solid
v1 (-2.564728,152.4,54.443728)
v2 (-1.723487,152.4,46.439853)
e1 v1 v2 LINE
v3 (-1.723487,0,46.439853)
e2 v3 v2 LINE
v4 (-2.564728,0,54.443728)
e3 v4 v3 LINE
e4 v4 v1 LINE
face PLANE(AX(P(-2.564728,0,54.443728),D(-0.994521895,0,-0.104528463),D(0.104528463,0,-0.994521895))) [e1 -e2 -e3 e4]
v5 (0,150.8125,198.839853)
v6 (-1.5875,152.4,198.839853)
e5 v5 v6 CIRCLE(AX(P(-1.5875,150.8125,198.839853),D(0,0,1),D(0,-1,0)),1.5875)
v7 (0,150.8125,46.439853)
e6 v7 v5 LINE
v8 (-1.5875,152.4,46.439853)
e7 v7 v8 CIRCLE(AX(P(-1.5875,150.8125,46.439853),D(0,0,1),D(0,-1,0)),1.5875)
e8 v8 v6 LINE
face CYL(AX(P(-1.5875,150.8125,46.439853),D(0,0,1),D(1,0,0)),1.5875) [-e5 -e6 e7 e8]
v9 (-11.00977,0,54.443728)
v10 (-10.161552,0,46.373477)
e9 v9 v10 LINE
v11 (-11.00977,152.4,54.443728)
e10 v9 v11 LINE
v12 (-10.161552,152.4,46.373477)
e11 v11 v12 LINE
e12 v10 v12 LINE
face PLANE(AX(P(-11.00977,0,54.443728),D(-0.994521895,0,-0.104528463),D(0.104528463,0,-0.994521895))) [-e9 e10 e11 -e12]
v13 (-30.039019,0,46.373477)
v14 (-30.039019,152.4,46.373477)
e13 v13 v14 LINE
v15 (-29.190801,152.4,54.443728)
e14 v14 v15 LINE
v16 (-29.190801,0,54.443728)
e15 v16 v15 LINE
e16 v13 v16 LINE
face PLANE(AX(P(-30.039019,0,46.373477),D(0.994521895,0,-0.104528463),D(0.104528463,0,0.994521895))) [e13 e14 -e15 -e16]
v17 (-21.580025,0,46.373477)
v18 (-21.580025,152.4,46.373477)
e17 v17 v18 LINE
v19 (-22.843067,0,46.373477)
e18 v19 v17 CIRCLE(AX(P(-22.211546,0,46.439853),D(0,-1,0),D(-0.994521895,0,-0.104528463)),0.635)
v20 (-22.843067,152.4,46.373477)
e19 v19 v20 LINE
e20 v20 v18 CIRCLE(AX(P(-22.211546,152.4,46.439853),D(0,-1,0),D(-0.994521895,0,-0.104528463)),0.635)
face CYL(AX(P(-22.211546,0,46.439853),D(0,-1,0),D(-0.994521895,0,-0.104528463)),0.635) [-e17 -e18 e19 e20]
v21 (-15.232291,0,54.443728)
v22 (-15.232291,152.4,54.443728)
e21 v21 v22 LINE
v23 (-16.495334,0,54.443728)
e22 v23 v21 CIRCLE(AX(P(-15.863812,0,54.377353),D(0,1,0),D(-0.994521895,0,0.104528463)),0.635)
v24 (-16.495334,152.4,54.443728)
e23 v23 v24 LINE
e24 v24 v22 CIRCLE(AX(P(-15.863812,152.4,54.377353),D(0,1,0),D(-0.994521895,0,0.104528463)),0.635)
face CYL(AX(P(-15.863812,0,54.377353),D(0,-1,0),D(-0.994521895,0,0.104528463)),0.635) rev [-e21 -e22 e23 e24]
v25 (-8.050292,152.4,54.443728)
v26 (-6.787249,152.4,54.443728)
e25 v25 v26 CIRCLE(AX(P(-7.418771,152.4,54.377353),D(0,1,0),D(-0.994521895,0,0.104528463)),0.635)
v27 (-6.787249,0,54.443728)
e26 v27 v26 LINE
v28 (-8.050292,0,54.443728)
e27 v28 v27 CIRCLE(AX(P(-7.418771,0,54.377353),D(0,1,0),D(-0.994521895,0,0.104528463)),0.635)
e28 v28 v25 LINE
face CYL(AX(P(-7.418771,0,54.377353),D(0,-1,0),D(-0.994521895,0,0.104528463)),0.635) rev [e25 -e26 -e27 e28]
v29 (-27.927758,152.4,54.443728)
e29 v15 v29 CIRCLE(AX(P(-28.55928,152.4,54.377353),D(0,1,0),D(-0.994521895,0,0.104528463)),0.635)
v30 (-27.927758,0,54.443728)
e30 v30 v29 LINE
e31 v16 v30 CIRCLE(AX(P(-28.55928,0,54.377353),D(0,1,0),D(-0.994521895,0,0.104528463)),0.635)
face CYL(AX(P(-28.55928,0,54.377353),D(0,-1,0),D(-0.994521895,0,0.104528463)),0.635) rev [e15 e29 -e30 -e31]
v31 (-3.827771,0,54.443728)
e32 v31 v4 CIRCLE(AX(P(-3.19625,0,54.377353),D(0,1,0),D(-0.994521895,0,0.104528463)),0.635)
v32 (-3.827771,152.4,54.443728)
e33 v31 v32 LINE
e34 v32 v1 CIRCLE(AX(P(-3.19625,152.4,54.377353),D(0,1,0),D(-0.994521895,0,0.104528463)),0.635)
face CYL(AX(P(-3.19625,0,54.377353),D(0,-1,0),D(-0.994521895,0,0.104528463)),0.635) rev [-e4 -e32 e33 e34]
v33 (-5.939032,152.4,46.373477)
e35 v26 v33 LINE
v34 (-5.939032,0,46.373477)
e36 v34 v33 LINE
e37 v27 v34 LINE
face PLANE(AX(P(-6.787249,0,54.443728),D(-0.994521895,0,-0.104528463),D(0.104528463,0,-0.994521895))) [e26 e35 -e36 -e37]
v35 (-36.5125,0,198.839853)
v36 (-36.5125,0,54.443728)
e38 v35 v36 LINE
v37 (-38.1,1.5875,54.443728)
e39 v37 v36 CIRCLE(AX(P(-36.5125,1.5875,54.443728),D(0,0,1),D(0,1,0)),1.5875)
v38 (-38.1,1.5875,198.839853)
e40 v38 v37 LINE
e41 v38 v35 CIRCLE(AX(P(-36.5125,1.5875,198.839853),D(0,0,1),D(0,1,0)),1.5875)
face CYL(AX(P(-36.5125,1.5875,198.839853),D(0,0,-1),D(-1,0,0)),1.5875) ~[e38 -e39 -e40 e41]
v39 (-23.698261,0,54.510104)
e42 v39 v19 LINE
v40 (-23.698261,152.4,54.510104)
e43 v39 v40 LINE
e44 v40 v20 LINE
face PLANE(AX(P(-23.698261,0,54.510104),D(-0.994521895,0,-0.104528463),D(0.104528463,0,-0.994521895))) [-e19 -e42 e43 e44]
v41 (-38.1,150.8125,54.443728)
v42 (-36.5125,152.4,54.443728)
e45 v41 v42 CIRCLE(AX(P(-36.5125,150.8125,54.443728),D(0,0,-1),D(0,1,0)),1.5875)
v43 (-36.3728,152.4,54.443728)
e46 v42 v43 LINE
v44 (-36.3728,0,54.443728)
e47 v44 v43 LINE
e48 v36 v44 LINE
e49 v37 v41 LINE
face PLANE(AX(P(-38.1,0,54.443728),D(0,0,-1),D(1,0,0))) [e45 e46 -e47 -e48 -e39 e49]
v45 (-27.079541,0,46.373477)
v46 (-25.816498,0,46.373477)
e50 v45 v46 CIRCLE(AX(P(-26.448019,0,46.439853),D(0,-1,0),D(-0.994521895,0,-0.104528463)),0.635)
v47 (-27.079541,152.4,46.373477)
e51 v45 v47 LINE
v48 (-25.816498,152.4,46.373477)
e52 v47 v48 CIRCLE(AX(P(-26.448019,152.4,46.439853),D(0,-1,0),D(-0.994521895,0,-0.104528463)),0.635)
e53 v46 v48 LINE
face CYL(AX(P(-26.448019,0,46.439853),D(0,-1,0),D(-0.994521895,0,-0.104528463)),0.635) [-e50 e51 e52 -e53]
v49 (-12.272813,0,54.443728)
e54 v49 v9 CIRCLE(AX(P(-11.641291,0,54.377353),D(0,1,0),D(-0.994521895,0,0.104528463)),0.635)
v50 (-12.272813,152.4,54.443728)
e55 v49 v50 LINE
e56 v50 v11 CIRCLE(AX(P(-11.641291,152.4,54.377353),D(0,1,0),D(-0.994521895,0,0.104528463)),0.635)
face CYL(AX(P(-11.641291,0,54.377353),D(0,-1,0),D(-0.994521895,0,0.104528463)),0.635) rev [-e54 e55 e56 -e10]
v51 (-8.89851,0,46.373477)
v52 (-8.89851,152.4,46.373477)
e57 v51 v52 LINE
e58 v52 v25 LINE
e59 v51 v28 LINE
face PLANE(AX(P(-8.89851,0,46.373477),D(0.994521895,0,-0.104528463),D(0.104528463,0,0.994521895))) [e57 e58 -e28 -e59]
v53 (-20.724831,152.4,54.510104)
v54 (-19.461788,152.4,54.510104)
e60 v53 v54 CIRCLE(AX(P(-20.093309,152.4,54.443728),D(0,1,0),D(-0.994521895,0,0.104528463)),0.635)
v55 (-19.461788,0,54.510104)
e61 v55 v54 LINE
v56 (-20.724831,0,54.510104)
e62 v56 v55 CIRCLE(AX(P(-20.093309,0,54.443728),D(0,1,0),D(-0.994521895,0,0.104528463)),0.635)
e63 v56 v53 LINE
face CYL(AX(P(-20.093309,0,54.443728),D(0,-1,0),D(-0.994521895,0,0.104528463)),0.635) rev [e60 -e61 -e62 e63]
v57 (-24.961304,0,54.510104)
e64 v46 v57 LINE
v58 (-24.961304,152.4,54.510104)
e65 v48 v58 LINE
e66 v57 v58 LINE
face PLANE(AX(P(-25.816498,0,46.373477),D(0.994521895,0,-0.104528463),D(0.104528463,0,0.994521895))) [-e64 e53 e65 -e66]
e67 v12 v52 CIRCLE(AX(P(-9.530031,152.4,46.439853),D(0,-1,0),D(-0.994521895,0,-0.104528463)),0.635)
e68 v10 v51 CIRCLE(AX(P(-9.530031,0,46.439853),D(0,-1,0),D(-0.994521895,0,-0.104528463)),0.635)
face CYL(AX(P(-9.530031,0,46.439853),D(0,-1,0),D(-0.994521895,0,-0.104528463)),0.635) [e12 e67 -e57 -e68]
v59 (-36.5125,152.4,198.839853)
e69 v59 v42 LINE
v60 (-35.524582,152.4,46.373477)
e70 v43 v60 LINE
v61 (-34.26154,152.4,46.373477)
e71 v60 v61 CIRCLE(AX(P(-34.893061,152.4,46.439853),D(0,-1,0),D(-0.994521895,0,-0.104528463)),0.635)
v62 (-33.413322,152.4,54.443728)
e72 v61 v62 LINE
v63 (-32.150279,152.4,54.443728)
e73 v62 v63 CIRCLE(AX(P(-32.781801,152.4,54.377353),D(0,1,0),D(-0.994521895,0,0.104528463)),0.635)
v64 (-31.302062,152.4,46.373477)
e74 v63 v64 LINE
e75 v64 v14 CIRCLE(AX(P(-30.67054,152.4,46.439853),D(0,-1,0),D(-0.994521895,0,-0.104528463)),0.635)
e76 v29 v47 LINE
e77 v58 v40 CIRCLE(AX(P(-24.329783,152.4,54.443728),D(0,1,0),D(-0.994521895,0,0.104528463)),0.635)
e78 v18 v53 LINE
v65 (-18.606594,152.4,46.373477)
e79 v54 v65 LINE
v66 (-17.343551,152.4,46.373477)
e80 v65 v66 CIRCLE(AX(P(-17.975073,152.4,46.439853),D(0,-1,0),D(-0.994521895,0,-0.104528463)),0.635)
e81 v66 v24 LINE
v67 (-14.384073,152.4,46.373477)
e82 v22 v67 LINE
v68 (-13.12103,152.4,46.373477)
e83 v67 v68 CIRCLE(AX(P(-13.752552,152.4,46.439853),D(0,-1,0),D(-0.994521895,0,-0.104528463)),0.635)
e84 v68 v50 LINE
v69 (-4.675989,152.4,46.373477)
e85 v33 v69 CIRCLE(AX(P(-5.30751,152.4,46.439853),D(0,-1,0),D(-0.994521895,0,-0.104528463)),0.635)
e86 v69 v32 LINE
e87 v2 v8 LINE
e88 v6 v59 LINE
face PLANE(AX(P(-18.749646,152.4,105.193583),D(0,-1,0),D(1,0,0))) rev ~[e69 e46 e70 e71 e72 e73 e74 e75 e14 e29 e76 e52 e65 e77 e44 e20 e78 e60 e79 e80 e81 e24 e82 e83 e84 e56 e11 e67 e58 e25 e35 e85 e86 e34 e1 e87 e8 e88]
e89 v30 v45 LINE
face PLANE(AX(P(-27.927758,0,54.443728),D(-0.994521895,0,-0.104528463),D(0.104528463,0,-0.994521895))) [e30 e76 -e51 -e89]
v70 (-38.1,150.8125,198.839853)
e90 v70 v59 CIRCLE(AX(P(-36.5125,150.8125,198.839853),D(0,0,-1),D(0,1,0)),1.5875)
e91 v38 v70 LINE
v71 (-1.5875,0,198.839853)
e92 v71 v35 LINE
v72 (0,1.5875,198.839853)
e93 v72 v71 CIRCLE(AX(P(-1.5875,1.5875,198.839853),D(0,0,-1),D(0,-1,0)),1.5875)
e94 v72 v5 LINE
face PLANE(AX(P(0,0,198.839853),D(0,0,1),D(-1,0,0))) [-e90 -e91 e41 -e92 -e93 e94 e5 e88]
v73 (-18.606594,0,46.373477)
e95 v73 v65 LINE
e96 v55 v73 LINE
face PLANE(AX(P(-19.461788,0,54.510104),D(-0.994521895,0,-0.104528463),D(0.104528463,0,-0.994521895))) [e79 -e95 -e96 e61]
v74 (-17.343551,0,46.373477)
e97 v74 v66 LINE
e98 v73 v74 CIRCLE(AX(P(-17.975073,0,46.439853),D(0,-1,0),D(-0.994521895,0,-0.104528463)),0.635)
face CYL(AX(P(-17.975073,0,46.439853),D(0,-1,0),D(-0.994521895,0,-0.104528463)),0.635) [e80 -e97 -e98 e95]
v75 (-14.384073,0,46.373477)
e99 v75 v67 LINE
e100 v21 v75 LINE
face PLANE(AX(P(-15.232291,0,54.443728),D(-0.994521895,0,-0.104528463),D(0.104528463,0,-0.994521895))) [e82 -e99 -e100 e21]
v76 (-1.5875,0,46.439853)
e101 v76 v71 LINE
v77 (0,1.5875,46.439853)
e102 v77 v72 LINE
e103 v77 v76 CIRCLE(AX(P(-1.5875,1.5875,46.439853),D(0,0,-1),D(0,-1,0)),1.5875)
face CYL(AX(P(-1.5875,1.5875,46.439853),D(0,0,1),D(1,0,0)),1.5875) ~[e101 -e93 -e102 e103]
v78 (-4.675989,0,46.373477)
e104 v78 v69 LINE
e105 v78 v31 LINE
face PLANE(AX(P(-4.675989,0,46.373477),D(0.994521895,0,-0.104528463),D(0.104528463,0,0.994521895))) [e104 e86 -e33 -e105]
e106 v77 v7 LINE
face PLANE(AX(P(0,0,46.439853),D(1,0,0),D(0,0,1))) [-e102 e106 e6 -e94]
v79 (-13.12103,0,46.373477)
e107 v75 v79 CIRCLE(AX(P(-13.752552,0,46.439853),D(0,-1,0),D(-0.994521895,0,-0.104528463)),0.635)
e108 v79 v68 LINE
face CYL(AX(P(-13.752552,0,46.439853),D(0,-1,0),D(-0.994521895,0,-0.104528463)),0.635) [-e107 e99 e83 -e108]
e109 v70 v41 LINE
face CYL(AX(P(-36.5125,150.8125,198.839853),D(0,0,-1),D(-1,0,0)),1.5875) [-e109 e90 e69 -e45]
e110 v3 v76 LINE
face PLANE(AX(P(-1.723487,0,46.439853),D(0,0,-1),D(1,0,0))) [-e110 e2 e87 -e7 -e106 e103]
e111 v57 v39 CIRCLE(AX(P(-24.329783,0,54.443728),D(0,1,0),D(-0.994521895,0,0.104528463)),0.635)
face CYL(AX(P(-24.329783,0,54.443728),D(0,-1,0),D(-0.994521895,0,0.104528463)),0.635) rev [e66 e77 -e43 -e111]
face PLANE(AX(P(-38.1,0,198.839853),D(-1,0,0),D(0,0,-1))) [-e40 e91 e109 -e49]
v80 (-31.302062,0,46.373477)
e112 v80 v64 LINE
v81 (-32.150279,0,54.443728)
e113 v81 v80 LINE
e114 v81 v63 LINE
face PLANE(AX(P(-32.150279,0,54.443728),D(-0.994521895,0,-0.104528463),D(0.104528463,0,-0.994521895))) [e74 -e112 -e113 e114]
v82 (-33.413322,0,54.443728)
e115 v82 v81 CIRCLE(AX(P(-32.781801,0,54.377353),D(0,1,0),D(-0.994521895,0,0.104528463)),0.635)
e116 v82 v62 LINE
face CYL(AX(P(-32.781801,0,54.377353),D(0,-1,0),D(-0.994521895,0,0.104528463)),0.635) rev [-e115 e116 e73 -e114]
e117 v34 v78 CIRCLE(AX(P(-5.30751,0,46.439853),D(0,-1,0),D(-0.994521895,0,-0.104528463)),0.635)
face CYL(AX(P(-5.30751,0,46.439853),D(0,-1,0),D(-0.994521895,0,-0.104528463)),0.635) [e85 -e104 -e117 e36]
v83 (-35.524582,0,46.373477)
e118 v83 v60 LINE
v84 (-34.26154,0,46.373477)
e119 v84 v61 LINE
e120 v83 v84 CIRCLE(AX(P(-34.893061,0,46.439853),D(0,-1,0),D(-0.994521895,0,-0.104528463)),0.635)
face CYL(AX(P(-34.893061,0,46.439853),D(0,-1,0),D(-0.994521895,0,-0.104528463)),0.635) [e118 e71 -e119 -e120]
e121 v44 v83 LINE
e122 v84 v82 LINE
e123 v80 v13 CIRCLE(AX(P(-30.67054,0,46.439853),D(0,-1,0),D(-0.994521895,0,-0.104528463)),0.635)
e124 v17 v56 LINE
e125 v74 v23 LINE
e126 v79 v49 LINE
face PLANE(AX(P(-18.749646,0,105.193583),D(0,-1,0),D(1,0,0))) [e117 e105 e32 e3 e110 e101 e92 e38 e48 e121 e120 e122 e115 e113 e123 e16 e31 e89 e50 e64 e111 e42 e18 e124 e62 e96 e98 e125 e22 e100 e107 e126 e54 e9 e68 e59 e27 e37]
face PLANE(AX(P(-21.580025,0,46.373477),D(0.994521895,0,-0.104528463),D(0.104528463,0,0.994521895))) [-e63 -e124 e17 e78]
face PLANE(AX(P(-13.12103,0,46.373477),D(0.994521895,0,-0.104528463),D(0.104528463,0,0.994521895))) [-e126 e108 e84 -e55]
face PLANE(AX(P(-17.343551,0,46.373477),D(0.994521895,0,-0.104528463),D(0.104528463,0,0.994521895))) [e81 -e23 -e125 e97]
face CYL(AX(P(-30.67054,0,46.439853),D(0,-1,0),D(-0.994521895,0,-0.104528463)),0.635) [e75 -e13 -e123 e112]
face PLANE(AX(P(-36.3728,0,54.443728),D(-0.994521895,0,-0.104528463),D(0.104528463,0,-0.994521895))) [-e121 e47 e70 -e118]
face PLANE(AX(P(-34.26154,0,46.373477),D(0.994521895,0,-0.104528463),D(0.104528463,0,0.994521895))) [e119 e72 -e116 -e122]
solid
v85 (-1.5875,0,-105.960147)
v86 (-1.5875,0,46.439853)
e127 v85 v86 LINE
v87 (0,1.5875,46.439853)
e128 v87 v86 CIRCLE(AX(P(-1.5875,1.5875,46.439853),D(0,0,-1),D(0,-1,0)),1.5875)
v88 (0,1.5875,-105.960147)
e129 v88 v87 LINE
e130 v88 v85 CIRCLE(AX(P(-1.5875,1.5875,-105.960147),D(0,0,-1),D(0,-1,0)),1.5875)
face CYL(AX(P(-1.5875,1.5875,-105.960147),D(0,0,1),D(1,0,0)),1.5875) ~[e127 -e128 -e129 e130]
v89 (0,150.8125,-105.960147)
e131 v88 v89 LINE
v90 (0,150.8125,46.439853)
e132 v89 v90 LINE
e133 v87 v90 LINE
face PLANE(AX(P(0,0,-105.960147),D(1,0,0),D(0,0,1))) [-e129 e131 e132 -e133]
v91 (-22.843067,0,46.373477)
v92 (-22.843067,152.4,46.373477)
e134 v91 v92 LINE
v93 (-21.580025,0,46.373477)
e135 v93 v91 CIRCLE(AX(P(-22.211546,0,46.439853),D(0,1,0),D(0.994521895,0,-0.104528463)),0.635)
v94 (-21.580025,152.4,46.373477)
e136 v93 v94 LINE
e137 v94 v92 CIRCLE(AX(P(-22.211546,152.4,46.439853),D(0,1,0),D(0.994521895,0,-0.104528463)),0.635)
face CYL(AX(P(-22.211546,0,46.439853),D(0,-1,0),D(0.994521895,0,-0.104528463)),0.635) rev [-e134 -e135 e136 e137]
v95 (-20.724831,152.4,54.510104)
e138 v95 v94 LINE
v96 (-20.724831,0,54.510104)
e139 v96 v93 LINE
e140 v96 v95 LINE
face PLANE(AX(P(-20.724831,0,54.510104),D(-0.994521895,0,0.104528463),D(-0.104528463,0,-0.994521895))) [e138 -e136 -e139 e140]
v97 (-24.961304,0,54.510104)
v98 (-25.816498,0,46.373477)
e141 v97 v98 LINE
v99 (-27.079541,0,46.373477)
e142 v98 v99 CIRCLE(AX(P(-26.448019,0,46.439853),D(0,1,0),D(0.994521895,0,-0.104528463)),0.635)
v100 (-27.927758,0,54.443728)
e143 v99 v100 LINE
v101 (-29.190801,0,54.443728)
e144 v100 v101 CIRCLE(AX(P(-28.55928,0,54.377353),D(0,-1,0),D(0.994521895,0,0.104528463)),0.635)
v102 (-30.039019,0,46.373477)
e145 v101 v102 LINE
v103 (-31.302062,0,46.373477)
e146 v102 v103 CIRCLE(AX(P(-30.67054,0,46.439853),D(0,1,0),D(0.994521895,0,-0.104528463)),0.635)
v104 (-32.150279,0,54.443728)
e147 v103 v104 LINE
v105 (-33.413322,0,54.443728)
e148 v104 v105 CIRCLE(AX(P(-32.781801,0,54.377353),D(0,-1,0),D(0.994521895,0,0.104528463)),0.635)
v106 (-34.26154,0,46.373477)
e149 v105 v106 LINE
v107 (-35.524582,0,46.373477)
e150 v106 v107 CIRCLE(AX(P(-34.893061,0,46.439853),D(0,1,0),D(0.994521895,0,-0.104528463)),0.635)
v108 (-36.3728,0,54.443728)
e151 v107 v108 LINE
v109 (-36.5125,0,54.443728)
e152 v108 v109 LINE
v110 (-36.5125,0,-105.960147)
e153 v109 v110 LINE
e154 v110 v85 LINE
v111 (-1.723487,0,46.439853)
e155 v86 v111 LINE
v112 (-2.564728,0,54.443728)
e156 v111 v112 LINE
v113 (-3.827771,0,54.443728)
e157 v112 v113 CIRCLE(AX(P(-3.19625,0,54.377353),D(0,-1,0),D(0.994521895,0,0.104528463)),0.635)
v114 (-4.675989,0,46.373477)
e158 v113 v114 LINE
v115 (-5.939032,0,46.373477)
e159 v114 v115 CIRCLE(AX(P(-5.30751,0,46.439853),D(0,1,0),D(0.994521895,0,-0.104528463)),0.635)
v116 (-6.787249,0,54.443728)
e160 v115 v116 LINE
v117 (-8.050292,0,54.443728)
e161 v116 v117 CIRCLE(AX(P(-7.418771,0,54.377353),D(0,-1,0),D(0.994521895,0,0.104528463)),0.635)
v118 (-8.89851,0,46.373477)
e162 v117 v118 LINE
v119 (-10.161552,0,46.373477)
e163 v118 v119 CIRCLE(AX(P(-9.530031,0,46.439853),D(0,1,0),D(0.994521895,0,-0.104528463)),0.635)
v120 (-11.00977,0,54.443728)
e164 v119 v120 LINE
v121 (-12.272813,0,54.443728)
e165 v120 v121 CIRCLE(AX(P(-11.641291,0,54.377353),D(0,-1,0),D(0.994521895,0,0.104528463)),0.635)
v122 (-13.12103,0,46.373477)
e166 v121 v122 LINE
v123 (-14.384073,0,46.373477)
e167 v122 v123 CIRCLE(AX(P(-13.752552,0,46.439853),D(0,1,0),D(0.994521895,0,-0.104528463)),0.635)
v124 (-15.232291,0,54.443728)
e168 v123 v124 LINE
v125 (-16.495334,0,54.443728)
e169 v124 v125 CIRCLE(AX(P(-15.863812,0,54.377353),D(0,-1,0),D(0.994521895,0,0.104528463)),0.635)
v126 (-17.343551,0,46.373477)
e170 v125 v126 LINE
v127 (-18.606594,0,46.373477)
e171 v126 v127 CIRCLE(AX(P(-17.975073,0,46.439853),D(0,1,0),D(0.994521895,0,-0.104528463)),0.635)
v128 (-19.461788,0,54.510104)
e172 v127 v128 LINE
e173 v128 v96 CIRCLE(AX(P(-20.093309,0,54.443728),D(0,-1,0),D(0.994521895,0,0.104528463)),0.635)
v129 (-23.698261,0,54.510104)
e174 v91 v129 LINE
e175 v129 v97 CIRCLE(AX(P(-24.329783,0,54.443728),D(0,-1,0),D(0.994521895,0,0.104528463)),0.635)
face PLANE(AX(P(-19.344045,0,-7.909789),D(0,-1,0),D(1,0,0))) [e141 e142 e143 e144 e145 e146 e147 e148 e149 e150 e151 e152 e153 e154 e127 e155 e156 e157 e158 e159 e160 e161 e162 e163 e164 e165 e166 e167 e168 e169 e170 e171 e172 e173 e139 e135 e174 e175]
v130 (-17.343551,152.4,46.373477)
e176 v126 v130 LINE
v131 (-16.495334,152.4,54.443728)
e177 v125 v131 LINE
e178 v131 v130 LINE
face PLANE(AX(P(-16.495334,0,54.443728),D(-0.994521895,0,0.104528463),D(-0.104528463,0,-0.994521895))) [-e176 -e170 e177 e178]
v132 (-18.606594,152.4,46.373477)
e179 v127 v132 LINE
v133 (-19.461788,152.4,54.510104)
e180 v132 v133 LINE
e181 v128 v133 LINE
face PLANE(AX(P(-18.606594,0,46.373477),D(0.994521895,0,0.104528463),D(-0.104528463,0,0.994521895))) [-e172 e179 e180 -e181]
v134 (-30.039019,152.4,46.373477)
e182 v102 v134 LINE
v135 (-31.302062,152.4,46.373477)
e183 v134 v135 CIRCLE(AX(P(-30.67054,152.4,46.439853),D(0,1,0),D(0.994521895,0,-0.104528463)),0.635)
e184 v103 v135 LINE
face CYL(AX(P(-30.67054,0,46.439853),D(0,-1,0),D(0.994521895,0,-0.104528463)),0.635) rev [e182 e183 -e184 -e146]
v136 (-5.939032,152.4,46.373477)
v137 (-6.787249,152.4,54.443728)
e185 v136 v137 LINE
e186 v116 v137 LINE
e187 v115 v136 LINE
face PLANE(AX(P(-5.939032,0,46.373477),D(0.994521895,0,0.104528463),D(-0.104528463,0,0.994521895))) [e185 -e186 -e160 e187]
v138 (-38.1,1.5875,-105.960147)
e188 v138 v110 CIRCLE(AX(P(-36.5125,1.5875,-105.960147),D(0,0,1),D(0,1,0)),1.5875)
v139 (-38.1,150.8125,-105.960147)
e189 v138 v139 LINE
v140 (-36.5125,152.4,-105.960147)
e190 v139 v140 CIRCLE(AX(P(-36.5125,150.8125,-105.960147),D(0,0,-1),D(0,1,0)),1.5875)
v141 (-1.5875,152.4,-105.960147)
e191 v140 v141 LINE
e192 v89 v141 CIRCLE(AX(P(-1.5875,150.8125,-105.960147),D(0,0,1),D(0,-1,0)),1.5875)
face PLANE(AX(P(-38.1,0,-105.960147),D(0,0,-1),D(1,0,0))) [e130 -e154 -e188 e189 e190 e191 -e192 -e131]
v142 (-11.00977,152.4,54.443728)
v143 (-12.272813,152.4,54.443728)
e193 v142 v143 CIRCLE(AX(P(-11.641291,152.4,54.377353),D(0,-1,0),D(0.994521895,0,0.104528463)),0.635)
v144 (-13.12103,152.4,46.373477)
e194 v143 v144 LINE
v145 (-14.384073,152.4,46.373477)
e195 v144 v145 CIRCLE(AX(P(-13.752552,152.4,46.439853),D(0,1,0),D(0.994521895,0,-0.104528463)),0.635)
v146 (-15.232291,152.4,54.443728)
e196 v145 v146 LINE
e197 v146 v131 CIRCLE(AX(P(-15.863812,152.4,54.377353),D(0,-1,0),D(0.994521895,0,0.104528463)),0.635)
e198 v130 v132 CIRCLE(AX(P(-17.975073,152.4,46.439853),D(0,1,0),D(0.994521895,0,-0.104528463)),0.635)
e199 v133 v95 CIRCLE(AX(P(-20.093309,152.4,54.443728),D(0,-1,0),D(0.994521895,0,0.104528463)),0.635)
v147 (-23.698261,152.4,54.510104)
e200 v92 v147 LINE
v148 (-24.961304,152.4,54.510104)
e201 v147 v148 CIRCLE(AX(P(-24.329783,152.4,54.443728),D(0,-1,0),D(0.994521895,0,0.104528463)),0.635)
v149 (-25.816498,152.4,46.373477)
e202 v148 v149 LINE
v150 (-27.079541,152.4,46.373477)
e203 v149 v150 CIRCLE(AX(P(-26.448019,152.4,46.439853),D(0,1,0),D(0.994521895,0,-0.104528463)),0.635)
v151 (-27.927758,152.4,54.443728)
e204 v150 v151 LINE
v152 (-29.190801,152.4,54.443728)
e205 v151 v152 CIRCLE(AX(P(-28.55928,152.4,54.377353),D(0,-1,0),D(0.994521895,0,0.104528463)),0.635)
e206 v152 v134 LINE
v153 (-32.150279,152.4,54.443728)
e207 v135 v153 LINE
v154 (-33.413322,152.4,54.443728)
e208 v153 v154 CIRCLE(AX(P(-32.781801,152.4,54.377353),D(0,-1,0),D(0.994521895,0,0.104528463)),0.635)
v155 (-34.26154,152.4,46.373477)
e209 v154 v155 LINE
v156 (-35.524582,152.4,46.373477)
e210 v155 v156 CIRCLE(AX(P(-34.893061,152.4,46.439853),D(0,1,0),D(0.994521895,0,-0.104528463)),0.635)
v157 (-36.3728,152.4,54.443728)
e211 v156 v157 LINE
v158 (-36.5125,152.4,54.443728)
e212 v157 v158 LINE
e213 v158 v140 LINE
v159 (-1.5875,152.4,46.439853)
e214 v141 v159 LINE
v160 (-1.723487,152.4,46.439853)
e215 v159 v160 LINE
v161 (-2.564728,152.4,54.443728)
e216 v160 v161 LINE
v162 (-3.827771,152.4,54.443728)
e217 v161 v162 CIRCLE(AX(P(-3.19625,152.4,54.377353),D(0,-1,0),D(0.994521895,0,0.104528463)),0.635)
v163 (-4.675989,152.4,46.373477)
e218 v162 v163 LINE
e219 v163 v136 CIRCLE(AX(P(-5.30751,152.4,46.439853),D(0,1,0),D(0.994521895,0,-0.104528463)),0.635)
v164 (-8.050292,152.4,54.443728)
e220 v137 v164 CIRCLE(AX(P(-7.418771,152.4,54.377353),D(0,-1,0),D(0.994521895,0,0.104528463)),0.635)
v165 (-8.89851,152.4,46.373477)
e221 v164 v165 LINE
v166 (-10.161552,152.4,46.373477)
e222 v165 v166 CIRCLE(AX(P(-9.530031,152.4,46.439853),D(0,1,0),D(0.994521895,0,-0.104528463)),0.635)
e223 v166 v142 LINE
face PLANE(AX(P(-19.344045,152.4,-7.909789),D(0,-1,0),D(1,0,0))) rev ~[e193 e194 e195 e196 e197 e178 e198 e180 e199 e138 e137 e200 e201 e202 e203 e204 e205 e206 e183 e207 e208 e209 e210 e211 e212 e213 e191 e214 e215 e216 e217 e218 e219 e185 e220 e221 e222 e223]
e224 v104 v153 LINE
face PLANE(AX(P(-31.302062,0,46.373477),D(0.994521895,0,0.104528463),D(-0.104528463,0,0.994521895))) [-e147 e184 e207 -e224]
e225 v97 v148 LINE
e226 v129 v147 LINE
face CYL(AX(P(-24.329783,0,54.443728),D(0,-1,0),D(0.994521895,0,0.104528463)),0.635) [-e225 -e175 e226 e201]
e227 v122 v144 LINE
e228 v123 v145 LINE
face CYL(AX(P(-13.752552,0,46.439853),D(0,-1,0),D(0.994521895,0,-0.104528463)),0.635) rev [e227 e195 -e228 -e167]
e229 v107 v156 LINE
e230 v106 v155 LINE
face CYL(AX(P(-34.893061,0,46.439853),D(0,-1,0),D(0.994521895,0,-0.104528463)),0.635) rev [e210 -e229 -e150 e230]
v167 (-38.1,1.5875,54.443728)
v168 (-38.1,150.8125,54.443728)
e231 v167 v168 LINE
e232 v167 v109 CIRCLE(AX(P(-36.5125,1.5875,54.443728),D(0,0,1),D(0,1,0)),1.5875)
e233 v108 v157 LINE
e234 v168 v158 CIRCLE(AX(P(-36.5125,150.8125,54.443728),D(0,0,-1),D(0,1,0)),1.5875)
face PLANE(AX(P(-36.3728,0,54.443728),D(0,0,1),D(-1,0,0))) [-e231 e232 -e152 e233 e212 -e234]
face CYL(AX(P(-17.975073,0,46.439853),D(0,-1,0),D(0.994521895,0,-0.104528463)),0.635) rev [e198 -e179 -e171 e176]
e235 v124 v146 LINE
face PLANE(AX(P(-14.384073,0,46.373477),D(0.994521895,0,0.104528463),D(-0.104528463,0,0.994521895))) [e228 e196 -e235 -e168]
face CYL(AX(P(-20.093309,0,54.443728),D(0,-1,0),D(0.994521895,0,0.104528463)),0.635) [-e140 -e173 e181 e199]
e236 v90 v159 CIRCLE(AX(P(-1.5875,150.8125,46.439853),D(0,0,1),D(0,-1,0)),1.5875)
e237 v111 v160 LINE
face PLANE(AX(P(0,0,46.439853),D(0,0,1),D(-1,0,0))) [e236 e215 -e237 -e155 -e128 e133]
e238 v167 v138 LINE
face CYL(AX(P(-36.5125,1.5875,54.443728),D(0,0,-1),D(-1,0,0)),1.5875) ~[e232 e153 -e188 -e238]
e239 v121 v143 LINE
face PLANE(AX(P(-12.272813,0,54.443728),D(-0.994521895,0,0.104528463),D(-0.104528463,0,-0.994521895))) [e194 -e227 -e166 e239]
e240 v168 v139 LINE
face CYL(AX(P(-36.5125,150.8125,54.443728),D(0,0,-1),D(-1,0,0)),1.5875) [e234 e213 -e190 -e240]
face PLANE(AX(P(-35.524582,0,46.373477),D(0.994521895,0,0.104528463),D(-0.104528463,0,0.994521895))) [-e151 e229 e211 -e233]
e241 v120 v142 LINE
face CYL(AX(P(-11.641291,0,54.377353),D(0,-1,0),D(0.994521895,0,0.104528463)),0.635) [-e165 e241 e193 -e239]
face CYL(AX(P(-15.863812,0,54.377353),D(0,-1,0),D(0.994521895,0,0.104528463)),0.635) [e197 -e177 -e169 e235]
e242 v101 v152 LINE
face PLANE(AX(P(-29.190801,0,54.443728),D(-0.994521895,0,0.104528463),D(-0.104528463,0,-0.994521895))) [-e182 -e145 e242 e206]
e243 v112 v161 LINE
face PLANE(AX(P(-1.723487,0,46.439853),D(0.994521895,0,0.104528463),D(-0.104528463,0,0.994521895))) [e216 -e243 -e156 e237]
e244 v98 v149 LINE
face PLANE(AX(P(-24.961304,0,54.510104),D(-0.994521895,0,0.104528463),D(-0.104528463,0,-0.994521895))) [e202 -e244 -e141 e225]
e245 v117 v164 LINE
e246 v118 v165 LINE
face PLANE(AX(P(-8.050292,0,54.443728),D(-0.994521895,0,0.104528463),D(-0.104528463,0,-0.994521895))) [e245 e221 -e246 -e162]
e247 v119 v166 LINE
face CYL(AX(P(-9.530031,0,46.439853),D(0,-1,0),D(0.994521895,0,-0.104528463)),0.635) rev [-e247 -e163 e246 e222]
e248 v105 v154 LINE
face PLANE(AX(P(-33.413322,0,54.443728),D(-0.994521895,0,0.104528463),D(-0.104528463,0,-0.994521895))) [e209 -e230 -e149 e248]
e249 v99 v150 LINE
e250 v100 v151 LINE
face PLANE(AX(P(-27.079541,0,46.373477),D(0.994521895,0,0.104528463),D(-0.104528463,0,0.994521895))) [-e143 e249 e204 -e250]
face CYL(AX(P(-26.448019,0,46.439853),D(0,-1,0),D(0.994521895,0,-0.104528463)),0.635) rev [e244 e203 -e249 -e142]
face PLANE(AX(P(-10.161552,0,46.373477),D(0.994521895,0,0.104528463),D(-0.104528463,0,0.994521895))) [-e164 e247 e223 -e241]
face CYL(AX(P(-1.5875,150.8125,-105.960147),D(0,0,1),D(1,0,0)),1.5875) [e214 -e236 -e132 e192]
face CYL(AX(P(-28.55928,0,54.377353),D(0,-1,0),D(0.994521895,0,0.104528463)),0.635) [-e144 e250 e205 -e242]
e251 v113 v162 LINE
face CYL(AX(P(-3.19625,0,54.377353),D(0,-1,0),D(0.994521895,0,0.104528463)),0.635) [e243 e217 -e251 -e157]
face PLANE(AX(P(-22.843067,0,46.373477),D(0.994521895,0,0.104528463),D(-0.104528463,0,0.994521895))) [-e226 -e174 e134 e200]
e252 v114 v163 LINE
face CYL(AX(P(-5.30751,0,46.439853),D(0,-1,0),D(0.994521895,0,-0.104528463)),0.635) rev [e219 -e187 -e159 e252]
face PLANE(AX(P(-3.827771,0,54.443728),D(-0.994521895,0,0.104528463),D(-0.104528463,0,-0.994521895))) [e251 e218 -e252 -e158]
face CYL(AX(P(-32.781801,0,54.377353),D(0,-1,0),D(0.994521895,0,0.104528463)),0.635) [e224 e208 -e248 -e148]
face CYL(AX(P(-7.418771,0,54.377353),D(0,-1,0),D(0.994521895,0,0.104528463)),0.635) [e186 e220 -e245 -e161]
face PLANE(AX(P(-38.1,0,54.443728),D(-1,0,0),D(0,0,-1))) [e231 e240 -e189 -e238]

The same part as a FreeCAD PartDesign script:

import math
import FreeCAD as App
import Part
import Sketcher
Q = App.Units.Quantity


def edges_at(feature, points):
    """Names of the edges that pass closest to the given points."""
    edges = feature.Shape.Edges
    near = lambda p: min(range(len(edges)), key=lambda i: edges[i].distToShape(Part.Vertex(*p))[0])
    return sorted({f"Edge{near(p) + 1}" for p in points})

doc = App.newDocument("Part")
body = doc.addObject("PartDesign::Body", "Body")

# Sketch on XZ plane
sketch1 = body.newObject("Sketcher::SketchObject", "Sketch")
sketch1.AttachmentSupport = (doc.getObject("XZ_Plane"), [""])
sketch1.MapMode = "FlatFace"
sketch1.addGeometry(Part.LineSegment(App.Vector(0, 198.8, 0), App.Vector(-38.1, 198.8, 0)), False)
sketch1.addGeometry(Part.LineSegment(App.Vector(-38.1, 198.8, 0), App.Vector(-38.1, 54.4, 0)), False)
sketch1.addGeometry(Part.LineSegment(App.Vector(-38.1, 54.4, 0), App.Vector(-36.4, 54.4, 0)), False)
sketch1.addGeometry(Part.LineSegment(App.Vector(-36.4, 54.4, 0), App.Vector(-35.5, 46.4, 0)), False)
sketch1.addGeometry(Part.ArcOfCircle(Part.Circle(App.Vector(-34.9, 46.4, 0), App.Vector(0, 0, 1), 0.6), math.radians(-174), math.radians(-6)), False)
sketch1.addGeometry(Part.LineSegment(App.Vector(-34.3, 46.4, 0), App.Vector(-33.4, 54.4, 0)), False)
sketch1.addGeometry(Part.ArcOfCircle(Part.Circle(App.Vector(-32.8, 54.4, 0), App.Vector(0, 0, 1), 0.6), math.radians(6), math.radians(174)), False)
sketch1.addGeometry(Part.LineSegment(App.Vector(-32.2, 54.4, 0), App.Vector(-31.3, 46.4, 0)), False)
sketch1.addGeometry(Part.ArcOfCircle(Part.Circle(App.Vector(-30.7, 46.4, 0), App.Vector(0, 0, 1), 0.6), math.radians(-174), math.radians(-6)), False)
sketch1.addGeometry(Part.LineSegment(App.Vector(-30, 46.4, 0), App.Vector(-29.2, 54.4, 0)), False)
sketch1.addGeometry(Part.ArcOfCircle(Part.Circle(App.Vector(-28.6, 54.4, 0), App.Vector(0, 0, 1), 0.6), math.radians(6), math.radians(174)), False)
sketch1.addGeometry(Part.LineSegment(App.Vector(-27.9, 54.4, 0), App.Vector(-27.1, 46.4, 0)), False)
sketch1.addGeometry(Part.ArcOfCircle(Part.Circle(App.Vector(-26.4, 46.4, 0), App.Vector(0, 0, 1), 0.6), math.radians(-174), math.radians(-6)), False)
sketch1.addGeometry(Part.LineSegment(App.Vector(-25.8, 46.4, 0), App.Vector(-25, 54.5, 0)), False)
sketch1.addGeometry(Part.ArcOfCircle(Part.Circle(App.Vector(-24.3, 54.4, 0), App.Vector(0, 0, 1), 0.6), math.radians(6), math.radians(174)), False)
sketch1.addGeometry(Part.LineSegment(App.Vector(-23.7, 54.5, 0), App.Vector(-22.8, 46.4, 0)), False)
sketch1.addGeometry(Part.ArcOfCircle(Part.Circle(App.Vector(-22.2, 46.4, 0), App.Vector(0, 0, 1), 0.6), math.radians(-174), math.radians(-6)), False)
sketch1.addGeometry(Part.LineSegment(App.Vector(-21.6, 46.4, 0), App.Vector(-20.7, 54.5, 0)), False)
sketch1.addGeometry(Part.ArcOfCircle(Part.Circle(App.Vector(-20.1, 54.4, 0), App.Vector(0, 0, 1), 0.6), math.radians(6), math.radians(174)), False)
sketch1.addGeometry(Part.LineSegment(App.Vector(-19.5, 54.5, 0), App.Vector(-18.6, 46.4, 0)), False)
sketch1.addGeometry(Part.ArcOfCircle(Part.Circle(App.Vector(-18, 46.4, 0), App.Vector(0, 0, 1), 0.6), math.radians(-174), math.radians(-6)), False)
sketch1.addGeometry(Part.LineSegment(App.Vector(-17.3, 46.4, 0), App.Vector(-16.5, 54.4, 0)), False)
sketch1.addGeometry(Part.ArcOfCircle(Part.Circle(App.Vector(-15.9, 54.4, 0), App.Vector(0, 0, 1), 0.6), math.radians(6), math.radians(174)), False)
sketch1.addGeometry(Part.LineSegment(App.Vector(-15.2, 54.4, 0), App.Vector(-14.4, 46.4, 0)), False)
sketch1.addGeometry(Part.ArcOfCircle(Part.Circle(App.Vector(-13.8, 46.4, 0), App.Vector(0, 0, 1), 0.6), math.radians(-174), math.radians(-6)), False)
sketch1.addGeometry(Part.LineSegment(App.Vector(-13.1, 46.4, 0), App.Vector(-12.3, 54.4, 0)), False)
sketch1.addGeometry(Part.ArcOfCircle(Part.Circle(App.Vector(-11.6, 54.4, 0), App.Vector(0, 0, 1), 0.6), math.radians(6), math.radians(174)), False)
sketch1.addGeometry(Part.LineSegment(App.Vector(-11, 54.4, 0), App.Vector(-10.2, 46.4, 0)), False)
sketch1.addGeometry(Part.ArcOfCircle(Part.Circle(App.Vector(-9.5, 46.4, 0), App.Vector(0, 0, 1), 0.6), math.radians(-174), math.radians(-6)), False)
sketch1.addGeometry(Part.LineSegment(App.Vector(-8.9, 46.4, 0), App.Vector(-8.1, 54.4, 0)), False)
sketch1.addGeometry(Part.ArcOfCircle(Part.Circle(App.Vector(-7.4, 54.4, 0), App.Vector(0, 0, 1), 0.6), math.radians(6), math.radians(174)), False)
sketch1.addGeometry(Part.LineSegment(App.Vector(-6.8, 54.4, 0), App.Vector(-5.9, 46.4, 0)), False)
sketch1.addGeometry(Part.ArcOfCircle(Part.Circle(App.Vector(-5.3, 46.4, 0), App.Vector(0, 0, 1), 0.6), math.radians(-174), math.radians(-6)), False)
sketch1.addGeometry(Part.LineSegment(App.Vector(-4.7, 46.4, 0), App.Vector(-3.8, 54.4, 0)), False)
sketch1.addGeometry(Part.ArcOfCircle(Part.Circle(App.Vector(-3.2, 54.4, 0), App.Vector(0, 0, 1), 0.6), math.radians(6), math.radians(174)), False)
sketch1.addGeometry(Part.LineSegment(App.Vector(-2.6, 54.4, 0), App.Vector(-1.7, 46.4, 0)), False)
sketch1.addGeometry(Part.LineSegment(App.Vector(-1.7, 46.4, 0), App.Vector(0, 46.4, 0)), False)
sketch1.addGeometry(Part.LineSegment(App.Vector(0, 46.4, 0), App.Vector(0, 198.8, 0)), False)
sketch1.addConstraint(Sketcher.Constraint("Coincident", 0, 2, 1, 1))
sketch1.addConstraint(Sketcher.Constraint("Coincident", 1, 2, 2, 1))
sketch1.addConstraint(Sketcher.Constraint("Coincident", 2, 2, 3, 1))
sketch1.addConstraint(Sketcher.Constraint("Tangent", 3, 2, 4, 1))
sketch1.addConstraint(Sketcher.Constraint("Tangent", 4, 2, 5, 1))
sketch1.addConstraint(Sketcher.Constraint("Tangent", 5, 2, 6, 2))
sketch1.addConstraint(Sketcher.Constraint("Tangent", 6, 1, 7, 1))
sketch1.addConstraint(Sketcher.Constraint("Tangent", 7, 2, 8, 1))
sketch1.addConstraint(Sketcher.Constraint("Tangent", 8, 2, 9, 1))
sketch1.addConstraint(Sketcher.Constraint("Tangent", 9, 2, 10, 2))
sketch1.addConstraint(Sketcher.Constraint("Tangent", 10, 1, 11, 1))
sketch1.addConstraint(Sketcher.Constraint("Tangent", 11, 2, 12, 1))
sketch1.addConstraint(Sketcher.Constraint("Tangent", 12, 2, 13, 1))
sketch1.addConstraint(Sketcher.Constraint("Tangent", 13, 2, 14, 2))
sketch1.addConstraint(Sketcher.Constraint("Tangent", 14, 1, 15, 1))
sketch1.addConstraint(Sketcher.Constraint("Tangent", 15, 2, 16, 1))
sketch1.addConstraint(Sketcher.Constraint("Tangent", 16, 2, 17, 1))
sketch1.addConstraint(Sketcher.Constraint("Tangent", 17, 2, 18, 2))
sketch1.addConstraint(Sketcher.Constraint("Tangent", 18, 1, 19, 1))
sketch1.addConstraint(Sketcher.Constraint("Tangent", 19, 2, 20, 1))
sketch1.addConstraint(Sketcher.Constraint("Tangent", 20, 2, 21, 1))
sketch1.addConstraint(Sketcher.Constraint("Tangent", 21, 2, 22, 2))
sketch1.addConstraint(Sketcher.Constraint("Tangent", 22, 1, 23, 1))
sketch1.addConstraint(Sketcher.Constraint("Tangent", 23, 2, 24, 1))
sketch1.addConstraint(Sketcher.Constraint("Tangent", 24, 2, 25, 1))
sketch1.addConstraint(Sketcher.Constraint("Tangent", 25, 2, 26, 2))
sketch1.addConstraint(Sketcher.Constraint("Tangent", 26, 1, 27, 1))
sketch1.addConstraint(Sketcher.Constraint("Tangent", 27, 2, 28, 1))
sketch1.addConstraint(Sketcher.Constraint("Tangent", 28, 2, 29, 1))
sketch1.addConstraint(Sketcher.Constraint("Tangent", 29, 2, 30, 2))
sketch1.addConstraint(Sketcher.Constraint("Tangent", 30, 1, 31, 1))
sketch1.addConstraint(Sketcher.Constraint("Tangent", 31, 2, 32, 1))
sketch1.addConstraint(Sketcher.Constraint("Tangent", 32, 2, 33, 1))
sketch1.addConstraint(Sketcher.Constraint("Tangent", 33, 2, 34, 2))
sketch1.addConstraint(Sketcher.Constraint("Tangent", 34, 1, 35, 1))
sketch1.addConstraint(Sketcher.Constraint("Coincident", 35, 2, 36, 1))
sketch1.addConstraint(Sketcher.Constraint("Coincident", 36, 2, 37, 1))
sketch1.addConstraint(Sketcher.Constraint("Coincident", 37, 2, 0, 1))
sketch1.addConstraint(Sketcher.Constraint("Horizontal", 0))
sketch1.addConstraint(Sketcher.Constraint("Vertical", 1))
sketch1.addConstraint(Sketcher.Constraint("Horizontal", 2))
sketch1.addConstraint(Sketcher.Constraint("Horizontal", 36))
sketch1.addConstraint(Sketcher.Constraint("Vertical", 37))
sketch1.addConstraint(Sketcher.Constraint("Equal", 4, 6))
sketch1.addConstraint(Sketcher.Constraint("Equal", 6, 8))
sketch1.addConstraint(Sketcher.Constraint("Equal", 8, 10))
sketch1.addConstraint(Sketcher.Constraint("Equal", 10, 12))
sketch1.addConstraint(Sketcher.Constraint("Equal", 12, 14))
sketch1.addConstraint(Sketcher.Constraint("Equal", 14, 16))
sketch1.addConstraint(Sketcher.Constraint("Equal", 16, 18))
sketch1.addConstraint(Sketcher.Constraint("Equal", 18, 20))
sketch1.addConstraint(Sketcher.Constraint("Equal", 20, 22))
sketch1.addConstraint(Sketcher.Constraint("Equal", 22, 24))
sketch1.addConstraint(Sketcher.Constraint("Equal", 24, 26))
sketch1.addConstraint(Sketcher.Constraint("Equal", 26, 28))
sketch1.addConstraint(Sketcher.Constraint("Equal", 28, 30))
sketch1.addConstraint(Sketcher.Constraint("Equal", 30, 32))
sketch1.addConstraint(Sketcher.Constraint("Equal", 32, 34))
sketch1.addConstraint(Sketcher.Constraint("PointOnObject", 36, 2, -2))
sketch1.addConstraint(Sketcher.Constraint("Parallel", 3, 7))
sketch1.addConstraint(Sketcher.Constraint("Parallel", 5, 9))
sketch1.addConstraint(Sketcher.Constraint("Parallel", 7, 11))
sketch1.addConstraint(Sketcher.Constraint("Parallel", 9, 13))
sketch1.addConstraint(Sketcher.Constraint("Parallel", 11, 15))
sketch1.addConstraint(Sketcher.Constraint("Parallel", 13, 17))
sketch1.addConstraint(Sketcher.Constraint("Parallel", 15, 19))
sketch1.addConstraint(Sketcher.Constraint("Parallel", 17, 21))
sketch1.addConstraint(Sketcher.Constraint("Parallel", 19, 23))
sketch1.addConstraint(Sketcher.Constraint("Parallel", 21, 25))
sketch1.addConstraint(Sketcher.Constraint("Parallel", 23, 27))
sketch1.addConstraint(Sketcher.Constraint("Parallel", 25, 29))
sketch1.addConstraint(Sketcher.Constraint("Parallel", 27, 31))
sketch1.addConstraint(Sketcher.Constraint("Parallel", 29, 33))
sketch1.addConstraint(Sketcher.Constraint("Parallel", 31, 35))
sketch1.addConstraint(Sketcher.Constraint("Horizontal", 4, 3, 8, 3))
sketch1.addConstraint(Sketcher.Constraint("Horizontal", 6, 3, 10, 3))
sketch1.addConstraint(Sketcher.Constraint("Horizontal", 8, 3, 12, 3))
sketch1.addConstraint(Sketcher.Constraint("Horizontal", 12, 3, 16, 3))
sketch1.addConstraint(Sketcher.Constraint("Horizontal", 14, 3, 18, 3))
sketch1.addConstraint(Sketcher.Constraint("Horizontal", 16, 3, 20, 3))
sketch1.addConstraint(Sketcher.Constraint("Horizontal", 10, 3, 22, 3))
sketch1.addConstraint(Sketcher.Constraint("Horizontal", 20, 3, 24, 3))
sketch1.addConstraint(Sketcher.Constraint("Horizontal", 22, 3, 26, 3))
sketch1.addConstraint(Sketcher.Constraint("Horizontal", 24, 3, 28, 3))
sketch1.addConstraint(Sketcher.Constraint("Horizontal", 26, 3, 30, 3))
sketch1.addConstraint(Sketcher.Constraint("Horizontal", 28, 3, 32, 3))
sketch1.addConstraint(Sketcher.Constraint("Horizontal", 30, 3, 34, 3))
sketch1.addConstraint(Sketcher.Constraint("Horizontal", 18, 3, 1, 2))
sketch1.addConstraint(Sketcher.Constraint("Horizontal", 3, 2, 4, 2))
sketch1.addConstraint(Sketcher.Constraint("Horizontal", 2, 2, 5, 2))
sketch1.addConstraint(Sketcher.Constraint("Horizontal", 32, 3, 35, 2))
sketch1.addConstraint(Sketcher.Constraint("DistanceY", 37, 1, 37, 2, Q("6 in")))
sketch1.addConstraint(Sketcher.Constraint("DistanceX", 0, 2, 0, 1, Q("1.5 in")))
sketch1.addConstraint(Sketcher.Constraint("Angle", 3, Q("-84 deg")))
sketch1.addConstraint(Sketcher.Constraint("Radius", 4, Q("0.025 in")))
sketch1.addConstraint(Sketcher.Constraint("DistanceX", 2, 1, 2, 2, Q("0.068 in")))
sketch1.addConstraint(Sketcher.Constraint("DistanceY", 4, 3, 6, 3, Q("0.3125 in")))
sketch1.addConstraint(Sketcher.Constraint("DistanceY", -1, 1, 14, 3, 54.443728))
pad1 = body.newObject("PartDesign::Pad", "Pad")
pad1.Profile = sketch1
pad1.Length = Q("6 in")
pad1.Reversed = True
doc.recompute()

fillet = body.newObject("PartDesign::Fillet", "Fillet")
fillet.Base = (pad1, edges_at(pad1, [
    (-38.1, 0, 126.642),
    (0, 0, 122.64),
    (0, 152.4, 122.64),
    (-38.1, 152.4, 126.642),
]))
fillet.Radius = Q("0.0625 in")
body2 = doc.addObject("PartDesign::Body", "Body001")

# Sketch on XZ plane
sketch2 = body2.newObject("Sketcher::SketchObject", "Sketch001")
sketch2.AttachmentSupport = (doc.getObject("XZ_Plane001"), [""])
sketch2.MapMode = "FlatFace"
sketch2.addGeometry(Part.LineSegment(App.Vector(-36.4, 54.4, 0), App.Vector(-38.1, 54.4, 0)), False)
sketch2.addGeometry(Part.LineSegment(App.Vector(-38.1, 54.4, 0), App.Vector(-38.1, -106, 0)), False)
sketch2.addGeometry(Part.LineSegment(App.Vector(-38.1, -106, 0), App.Vector(0, -106, 0)), False)
sketch2.addGeometry(Part.LineSegment(App.Vector(0, -106, 0), App.Vector(0, 46.4, 0)), False)
sketch2.addGeometry(Part.LineSegment(App.Vector(0, 46.4, 0), App.Vector(-1.7, 46.4, 0)), False)
sketch2.addGeometry(Part.LineSegment(App.Vector(-1.7, 46.4, 0), App.Vector(-2.6, 54.4, 0)), False)
sketch2.addGeometry(Part.ArcOfCircle(Part.Circle(App.Vector(-3.2, 54.4, 0), App.Vector(0, 0, 1), 0.6), math.radians(6), math.radians(174)), False)
sketch2.addGeometry(Part.LineSegment(App.Vector(-3.8, 54.4, 0), App.Vector(-4.7, 46.4, 0)), False)
sketch2.addGeometry(Part.ArcOfCircle(Part.Circle(App.Vector(-5.3, 46.4, 0), App.Vector(0, 0, 1), 0.6), math.radians(-174), math.radians(-6)), False)
sketch2.addGeometry(Part.LineSegment(App.Vector(-5.9, 46.4, 0), App.Vector(-6.8, 54.4, 0)), False)
sketch2.addGeometry(Part.ArcOfCircle(Part.Circle(App.Vector(-7.4, 54.4, 0), App.Vector(0, 0, 1), 0.6), math.radians(6), math.radians(174)), False)
sketch2.addGeometry(Part.LineSegment(App.Vector(-8.1, 54.4, 0), App.Vector(-8.9, 46.4, 0)), False)
sketch2.addGeometry(Part.ArcOfCircle(Part.Circle(App.Vector(-9.5, 46.4, 0), App.Vector(0, 0, 1), 0.6), math.radians(-174), math.radians(-6)), False)
sketch2.addGeometry(Part.LineSegment(App.Vector(-10.2, 46.4, 0), App.Vector(-11, 54.4, 0)), False)
sketch2.addGeometry(Part.ArcOfCircle(Part.Circle(App.Vector(-11.6, 54.4, 0), App.Vector(0, 0, 1), 0.6), math.radians(6), math.radians(174)), False)
sketch2.addGeometry(Part.LineSegment(App.Vector(-12.3, 54.4, 0), App.Vector(-13.1, 46.4, 0)), False)
sketch2.addGeometry(Part.ArcOfCircle(Part.Circle(App.Vector(-13.8, 46.4, 0), App.Vector(0, 0, 1), 0.6), math.radians(-174), math.radians(-6)), False)
sketch2.addGeometry(Part.LineSegment(App.Vector(-14.4, 46.4, 0), App.Vector(-15.2, 54.4, 0)), False)
sketch2.addGeometry(Part.ArcOfCircle(Part.Circle(App.Vector(-15.9, 54.4, 0), App.Vector(0, 0, 1), 0.6), math.radians(6), math.radians(174)), False)
sketch2.addGeometry(Part.LineSegment(App.Vector(-16.5, 54.4, 0), App.Vector(-17.3, 46.4, 0)), False)
sketch2.addGeometry(Part.ArcOfCircle(Part.Circle(App.Vector(-18, 46.4, 0), App.Vector(0, 0, 1), 0.6), math.radians(-174), math.radians(-6)), False)
sketch2.addGeometry(Part.LineSegment(App.Vector(-18.6, 46.4, 0), App.Vector(-19.5, 54.5, 0)), False)
sketch2.addGeometry(Part.ArcOfCircle(Part.Circle(App.Vector(-20.1, 54.4, 0), App.Vector(0, 0, 1), 0.6), math.radians(6), math.radians(174)), False)
sketch2.addGeometry(Part.LineSegment(App.Vector(-20.7, 54.5, 0), App.Vector(-21.6, 46.4, 0)), False)
sketch2.addGeometry(Part.ArcOfCircle(Part.Circle(App.Vector(-22.2, 46.4, 0), App.Vector(0, 0, 1), 0.6), math.radians(-174), math.radians(-6)), False)
sketch2.addGeometry(Part.LineSegment(App.Vector(-22.8, 46.4, 0), App.Vector(-23.7, 54.5, 0)), False)
sketch2.addGeometry(Part.ArcOfCircle(Part.Circle(App.Vector(-24.3, 54.4, 0), App.Vector(0, 0, 1), 0.6), math.radians(6), math.radians(174)), False)
sketch2.addGeometry(Part.LineSegment(App.Vector(-25, 54.5, 0), App.Vector(-25.8, 46.4, 0)), False)
sketch2.addGeometry(Part.ArcOfCircle(Part.Circle(App.Vector(-26.4, 46.4, 0), App.Vector(0, 0, 1), 0.6), math.radians(-174), math.radians(-6)), False)
sketch2.addGeometry(Part.LineSegment(App.Vector(-27.1, 46.4, 0), App.Vector(-27.9, 54.4, 0)), False)
sketch2.addGeometry(Part.ArcOfCircle(Part.Circle(App.Vector(-28.6, 54.4, 0), App.Vector(0, 0, 1), 0.6), math.radians(6), math.radians(174)), False)
sketch2.addGeometry(Part.LineSegment(App.Vector(-29.2, 54.4, 0), App.Vector(-30, 46.4, 0)), False)
sketch2.addGeometry(Part.ArcOfCircle(Part.Circle(App.Vector(-30.7, 46.4, 0), App.Vector(0, 0, 1), 0.6), math.radians(-174), math.radians(-6)), False)
sketch2.addGeometry(Part.LineSegment(App.Vector(-31.3, 46.4, 0), App.Vector(-32.2, 54.4, 0)), False)
sketch2.addGeometry(Part.ArcOfCircle(Part.Circle(App.Vector(-32.8, 54.4, 0), App.Vector(0, 0, 1), 0.6), math.radians(6), math.radians(174)), False)
sketch2.addGeometry(Part.LineSegment(App.Vector(-33.4, 54.4, 0), App.Vector(-34.3, 46.4, 0)), False)
sketch2.addGeometry(Part.ArcOfCircle(Part.Circle(App.Vector(-34.9, 46.4, 0), App.Vector(0, 0, 1), 0.6), math.radians(-174), math.radians(-6)), False)
sketch2.addGeometry(Part.LineSegment(App.Vector(-35.5, 46.4, 0), App.Vector(-36.4, 54.4, 0)), False)
sketch2.addConstraint(Sketcher.Constraint("Coincident", 0, 2, 1, 1))
sketch2.addConstraint(Sketcher.Constraint("Coincident", 1, 2, 2, 1))
sketch2.addConstraint(Sketcher.Constraint("Coincident", 2, 2, 3, 1))
sketch2.addConstraint(Sketcher.Constraint("Coincident", 3, 2, 4, 1))
sketch2.addConstraint(Sketcher.Constraint("Coincident", 4, 2, 5, 1))
sketch2.addConstraint(Sketcher.Constraint("Tangent", 5, 2, 6, 1))
sketch2.addConstraint(Sketcher.Constraint("Tangent", 6, 2, 7, 1))
sketch2.addConstraint(Sketcher.Constraint("Tangent", 7, 2, 8, 2))
sketch2.addConstraint(Sketcher.Constraint("Tangent", 8, 1, 9, 1))
sketch2.addConstraint(Sketcher.Constraint("Tangent", 9, 2, 10, 1))
sketch2.addConstraint(Sketcher.Constraint("Tangent", 10, 2, 11, 1))
sketch2.addConstraint(Sketcher.Constraint("Tangent", 11, 2, 12, 2))
sketch2.addConstraint(Sketcher.Constraint("Tangent", 12, 1, 13, 1))
sketch2.addConstraint(Sketcher.Constraint("Tangent", 13, 2, 14, 1))
sketch2.addConstraint(Sketcher.Constraint("Tangent", 14, 2, 15, 1))
sketch2.addConstraint(Sketcher.Constraint("Tangent", 15, 2, 16, 2))
sketch2.addConstraint(Sketcher.Constraint("Tangent", 16, 1, 17, 1))
sketch2.addConstraint(Sketcher.Constraint("Tangent", 17, 2, 18, 1))
sketch2.addConstraint(Sketcher.Constraint("Tangent", 18, 2, 19, 1))
sketch2.addConstraint(Sketcher.Constraint("Tangent", 19, 2, 20, 2))
sketch2.addConstraint(Sketcher.Constraint("Tangent", 20, 1, 21, 1))
sketch2.addConstraint(Sketcher.Constraint("Tangent", 21, 2, 22, 1))
sketch2.addConstraint(Sketcher.Constraint("Tangent", 22, 2, 23, 1))
sketch2.addConstraint(Sketcher.Constraint("Tangent", 23, 2, 24, 2))
sketch2.addConstraint(Sketcher.Constraint("Tangent", 24, 1, 25, 1))
sketch2.addConstraint(Sketcher.Constraint("Tangent", 25, 2, 26, 1))
sketch2.addConstraint(Sketcher.Constraint("Tangent", 26, 2, 27, 1))
sketch2.addConstraint(Sketcher.Constraint("Tangent", 27, 2, 28, 2))
sketch2.addConstraint(Sketcher.Constraint("Tangent", 28, 1, 29, 1))
sketch2.addConstraint(Sketcher.Constraint("Tangent", 29, 2, 30, 1))
sketch2.addConstraint(Sketcher.Constraint("Tangent", 30, 2, 31, 1))
sketch2.addConstraint(Sketcher.Constraint("Tangent", 31, 2, 32, 2))
sketch2.addConstraint(Sketcher.Constraint("Tangent", 32, 1, 33, 1))
sketch2.addConstraint(Sketcher.Constraint("Tangent", 33, 2, 34, 1))
sketch2.addConstraint(Sketcher.Constraint("Tangent", 34, 2, 35, 1))
sketch2.addConstraint(Sketcher.Constraint("Tangent", 35, 2, 36, 2))
sketch2.addConstraint(Sketcher.Constraint("Tangent", 36, 1, 37, 1))
sketch2.addConstraint(Sketcher.Constraint("Coincident", 37, 2, 0, 1))
sketch2.addConstraint(Sketcher.Constraint("Horizontal", 0))
sketch2.addConstraint(Sketcher.Constraint("Vertical", 1))
sketch2.addConstraint(Sketcher.Constraint("Horizontal", 2))
sketch2.addConstraint(Sketcher.Constraint("Vertical", 3))
sketch2.addConstraint(Sketcher.Constraint("Horizontal", 4))
sketch2.addConstraint(Sketcher.Constraint("Equal", 6, 8))
sketch2.addConstraint(Sketcher.Constraint("Equal", 8, 10))
sketch2.addConstraint(Sketcher.Constraint("Equal", 10, 12))
sketch2.addConstraint(Sketcher.Constraint("Equal", 12, 14))
sketch2.addConstraint(Sketcher.Constraint("Equal", 14, 16))
sketch2.addConstraint(Sketcher.Constraint("Equal", 16, 18))
sketch2.addConstraint(Sketcher.Constraint("Equal", 18, 20))
sketch2.addConstraint(Sketcher.Constraint("Equal", 20, 22))
sketch2.addConstraint(Sketcher.Constraint("Equal", 22, 24))
sketch2.addConstraint(Sketcher.Constraint("Equal", 24, 26))
sketch2.addConstraint(Sketcher.Constraint("Equal", 26, 28))
sketch2.addConstraint(Sketcher.Constraint("Equal", 28, 30))
sketch2.addConstraint(Sketcher.Constraint("Equal", 30, 32))
sketch2.addConstraint(Sketcher.Constraint("Equal", 32, 34))
sketch2.addConstraint(Sketcher.Constraint("Equal", 34, 36))
sketch2.addConstraint(Sketcher.Constraint("PointOnObject", 2, 2, -2))
sketch2.addConstraint(Sketcher.Constraint("Parallel", 5, 9))
sketch2.addConstraint(Sketcher.Constraint("Parallel", 7, 11))
sketch2.addConstraint(Sketcher.Constraint("Parallel", 9, 13))
sketch2.addConstraint(Sketcher.Constraint("Parallel", 11, 15))
sketch2.addConstraint(Sketcher.Constraint("Parallel", 13, 17))
sketch2.addConstraint(Sketcher.Constraint("Parallel", 15, 19))
sketch2.addConstraint(Sketcher.Constraint("Parallel", 17, 21))
sketch2.addConstraint(Sketcher.Constraint("Parallel", 19, 23))
sketch2.addConstraint(Sketcher.Constraint("Parallel", 21, 25))
sketch2.addConstraint(Sketcher.Constraint("Parallel", 23, 27))
sketch2.addConstraint(Sketcher.Constraint("Parallel", 25, 29))
sketch2.addConstraint(Sketcher.Constraint("Parallel", 27, 31))
sketch2.addConstraint(Sketcher.Constraint("Parallel", 29, 33))
sketch2.addConstraint(Sketcher.Constraint("Parallel", 31, 35))
sketch2.addConstraint(Sketcher.Constraint("Parallel", 33, 37))
sketch2.addConstraint(Sketcher.Constraint("Horizontal", 6, 3, 10, 3))
sketch2.addConstraint(Sketcher.Constraint("Horizontal", 8, 3, 12, 3))
sketch2.addConstraint(Sketcher.Constraint("Horizontal", 10, 3, 14, 3))
sketch2.addConstraint(Sketcher.Constraint("Horizontal", 12, 3, 16, 3))
sketch2.addConstraint(Sketcher.Constraint("Horizontal", 14, 3, 18, 3))
sketch2.addConstraint(Sketcher.Constraint("Horizontal", 16, 3, 20, 3))
sketch2.addConstraint(Sketcher.Constraint("Horizontal", 20, 3, 24, 3))
sketch2.addConstraint(Sketcher.Constraint("Horizontal", 22, 3, 26, 3))
sketch2.addConstraint(Sketcher.Constraint("Horizontal", 24, 3, 28, 3))
sketch2.addConstraint(Sketcher.Constraint("Horizontal", 18, 3, 30, 3))
sketch2.addConstraint(Sketcher.Constraint("Horizontal", 28, 3, 32, 3))
sketch2.addConstraint(Sketcher.Constraint("Horizontal", 30, 3, 34, 3))
sketch2.addConstraint(Sketcher.Constraint("Horizontal", 32, 3, 36, 3))
sketch2.addConstraint(Sketcher.Constraint("Horizontal", 26, 3, 0, 2))
sketch2.addConstraint(Sketcher.Constraint("Horizontal", 36, 3, 3, 2))
sketch2.addConstraint(Sketcher.Constraint("Horizontal", 0, 2, 5, 2))
sketch2.addConstraint(Sketcher.Constraint("Horizontal", 5, 2, 6, 2))
sketch2.addConstraint(Sketcher.Constraint("DistanceY", 3, 1, 3, 2, Q("6 in")))
sketch2.addConstraint(Sketcher.Constraint("DistanceX", 2, 1, 2, 2, Q("1.5 in")))
sketch2.addConstraint(Sketcher.Constraint("Angle", 5, Q("96 deg")))
sketch2.addConstraint(Sketcher.Constraint("Radius", 6, Q("0.025 in")))
sketch2.addConstraint(Sketcher.Constraint("DistanceX", 0, 2, 0, 1, Q("0.068 in")))
sketch2.addConstraint(Sketcher.Constraint("DistanceY", 8, 3, 6, 3, Q("0.3125 in")))
sketch2.addConstraint(Sketcher.Constraint("DistanceY", -1, 1, 22, 3, 54.443728))
pad2 = body2.newObject("PartDesign::Pad", "Pad001")
pad2.Profile = sketch2
pad2.Length = Q("6 in")
pad2.Reversed = True
doc.recompute()

fillet2 = body2.newObject("PartDesign::Fillet", "Fillet001")
fillet2.Base = (pad2, edges_at(pad2, [
    (-38.1, 0, -25.758),
    (0, 0, -29.76),
    (0, 152.4, -29.76),
    (-38.1, 152.4, -25.758),
]))
fillet2.Radius = Q("0.0625 in")

doc.recompute()
